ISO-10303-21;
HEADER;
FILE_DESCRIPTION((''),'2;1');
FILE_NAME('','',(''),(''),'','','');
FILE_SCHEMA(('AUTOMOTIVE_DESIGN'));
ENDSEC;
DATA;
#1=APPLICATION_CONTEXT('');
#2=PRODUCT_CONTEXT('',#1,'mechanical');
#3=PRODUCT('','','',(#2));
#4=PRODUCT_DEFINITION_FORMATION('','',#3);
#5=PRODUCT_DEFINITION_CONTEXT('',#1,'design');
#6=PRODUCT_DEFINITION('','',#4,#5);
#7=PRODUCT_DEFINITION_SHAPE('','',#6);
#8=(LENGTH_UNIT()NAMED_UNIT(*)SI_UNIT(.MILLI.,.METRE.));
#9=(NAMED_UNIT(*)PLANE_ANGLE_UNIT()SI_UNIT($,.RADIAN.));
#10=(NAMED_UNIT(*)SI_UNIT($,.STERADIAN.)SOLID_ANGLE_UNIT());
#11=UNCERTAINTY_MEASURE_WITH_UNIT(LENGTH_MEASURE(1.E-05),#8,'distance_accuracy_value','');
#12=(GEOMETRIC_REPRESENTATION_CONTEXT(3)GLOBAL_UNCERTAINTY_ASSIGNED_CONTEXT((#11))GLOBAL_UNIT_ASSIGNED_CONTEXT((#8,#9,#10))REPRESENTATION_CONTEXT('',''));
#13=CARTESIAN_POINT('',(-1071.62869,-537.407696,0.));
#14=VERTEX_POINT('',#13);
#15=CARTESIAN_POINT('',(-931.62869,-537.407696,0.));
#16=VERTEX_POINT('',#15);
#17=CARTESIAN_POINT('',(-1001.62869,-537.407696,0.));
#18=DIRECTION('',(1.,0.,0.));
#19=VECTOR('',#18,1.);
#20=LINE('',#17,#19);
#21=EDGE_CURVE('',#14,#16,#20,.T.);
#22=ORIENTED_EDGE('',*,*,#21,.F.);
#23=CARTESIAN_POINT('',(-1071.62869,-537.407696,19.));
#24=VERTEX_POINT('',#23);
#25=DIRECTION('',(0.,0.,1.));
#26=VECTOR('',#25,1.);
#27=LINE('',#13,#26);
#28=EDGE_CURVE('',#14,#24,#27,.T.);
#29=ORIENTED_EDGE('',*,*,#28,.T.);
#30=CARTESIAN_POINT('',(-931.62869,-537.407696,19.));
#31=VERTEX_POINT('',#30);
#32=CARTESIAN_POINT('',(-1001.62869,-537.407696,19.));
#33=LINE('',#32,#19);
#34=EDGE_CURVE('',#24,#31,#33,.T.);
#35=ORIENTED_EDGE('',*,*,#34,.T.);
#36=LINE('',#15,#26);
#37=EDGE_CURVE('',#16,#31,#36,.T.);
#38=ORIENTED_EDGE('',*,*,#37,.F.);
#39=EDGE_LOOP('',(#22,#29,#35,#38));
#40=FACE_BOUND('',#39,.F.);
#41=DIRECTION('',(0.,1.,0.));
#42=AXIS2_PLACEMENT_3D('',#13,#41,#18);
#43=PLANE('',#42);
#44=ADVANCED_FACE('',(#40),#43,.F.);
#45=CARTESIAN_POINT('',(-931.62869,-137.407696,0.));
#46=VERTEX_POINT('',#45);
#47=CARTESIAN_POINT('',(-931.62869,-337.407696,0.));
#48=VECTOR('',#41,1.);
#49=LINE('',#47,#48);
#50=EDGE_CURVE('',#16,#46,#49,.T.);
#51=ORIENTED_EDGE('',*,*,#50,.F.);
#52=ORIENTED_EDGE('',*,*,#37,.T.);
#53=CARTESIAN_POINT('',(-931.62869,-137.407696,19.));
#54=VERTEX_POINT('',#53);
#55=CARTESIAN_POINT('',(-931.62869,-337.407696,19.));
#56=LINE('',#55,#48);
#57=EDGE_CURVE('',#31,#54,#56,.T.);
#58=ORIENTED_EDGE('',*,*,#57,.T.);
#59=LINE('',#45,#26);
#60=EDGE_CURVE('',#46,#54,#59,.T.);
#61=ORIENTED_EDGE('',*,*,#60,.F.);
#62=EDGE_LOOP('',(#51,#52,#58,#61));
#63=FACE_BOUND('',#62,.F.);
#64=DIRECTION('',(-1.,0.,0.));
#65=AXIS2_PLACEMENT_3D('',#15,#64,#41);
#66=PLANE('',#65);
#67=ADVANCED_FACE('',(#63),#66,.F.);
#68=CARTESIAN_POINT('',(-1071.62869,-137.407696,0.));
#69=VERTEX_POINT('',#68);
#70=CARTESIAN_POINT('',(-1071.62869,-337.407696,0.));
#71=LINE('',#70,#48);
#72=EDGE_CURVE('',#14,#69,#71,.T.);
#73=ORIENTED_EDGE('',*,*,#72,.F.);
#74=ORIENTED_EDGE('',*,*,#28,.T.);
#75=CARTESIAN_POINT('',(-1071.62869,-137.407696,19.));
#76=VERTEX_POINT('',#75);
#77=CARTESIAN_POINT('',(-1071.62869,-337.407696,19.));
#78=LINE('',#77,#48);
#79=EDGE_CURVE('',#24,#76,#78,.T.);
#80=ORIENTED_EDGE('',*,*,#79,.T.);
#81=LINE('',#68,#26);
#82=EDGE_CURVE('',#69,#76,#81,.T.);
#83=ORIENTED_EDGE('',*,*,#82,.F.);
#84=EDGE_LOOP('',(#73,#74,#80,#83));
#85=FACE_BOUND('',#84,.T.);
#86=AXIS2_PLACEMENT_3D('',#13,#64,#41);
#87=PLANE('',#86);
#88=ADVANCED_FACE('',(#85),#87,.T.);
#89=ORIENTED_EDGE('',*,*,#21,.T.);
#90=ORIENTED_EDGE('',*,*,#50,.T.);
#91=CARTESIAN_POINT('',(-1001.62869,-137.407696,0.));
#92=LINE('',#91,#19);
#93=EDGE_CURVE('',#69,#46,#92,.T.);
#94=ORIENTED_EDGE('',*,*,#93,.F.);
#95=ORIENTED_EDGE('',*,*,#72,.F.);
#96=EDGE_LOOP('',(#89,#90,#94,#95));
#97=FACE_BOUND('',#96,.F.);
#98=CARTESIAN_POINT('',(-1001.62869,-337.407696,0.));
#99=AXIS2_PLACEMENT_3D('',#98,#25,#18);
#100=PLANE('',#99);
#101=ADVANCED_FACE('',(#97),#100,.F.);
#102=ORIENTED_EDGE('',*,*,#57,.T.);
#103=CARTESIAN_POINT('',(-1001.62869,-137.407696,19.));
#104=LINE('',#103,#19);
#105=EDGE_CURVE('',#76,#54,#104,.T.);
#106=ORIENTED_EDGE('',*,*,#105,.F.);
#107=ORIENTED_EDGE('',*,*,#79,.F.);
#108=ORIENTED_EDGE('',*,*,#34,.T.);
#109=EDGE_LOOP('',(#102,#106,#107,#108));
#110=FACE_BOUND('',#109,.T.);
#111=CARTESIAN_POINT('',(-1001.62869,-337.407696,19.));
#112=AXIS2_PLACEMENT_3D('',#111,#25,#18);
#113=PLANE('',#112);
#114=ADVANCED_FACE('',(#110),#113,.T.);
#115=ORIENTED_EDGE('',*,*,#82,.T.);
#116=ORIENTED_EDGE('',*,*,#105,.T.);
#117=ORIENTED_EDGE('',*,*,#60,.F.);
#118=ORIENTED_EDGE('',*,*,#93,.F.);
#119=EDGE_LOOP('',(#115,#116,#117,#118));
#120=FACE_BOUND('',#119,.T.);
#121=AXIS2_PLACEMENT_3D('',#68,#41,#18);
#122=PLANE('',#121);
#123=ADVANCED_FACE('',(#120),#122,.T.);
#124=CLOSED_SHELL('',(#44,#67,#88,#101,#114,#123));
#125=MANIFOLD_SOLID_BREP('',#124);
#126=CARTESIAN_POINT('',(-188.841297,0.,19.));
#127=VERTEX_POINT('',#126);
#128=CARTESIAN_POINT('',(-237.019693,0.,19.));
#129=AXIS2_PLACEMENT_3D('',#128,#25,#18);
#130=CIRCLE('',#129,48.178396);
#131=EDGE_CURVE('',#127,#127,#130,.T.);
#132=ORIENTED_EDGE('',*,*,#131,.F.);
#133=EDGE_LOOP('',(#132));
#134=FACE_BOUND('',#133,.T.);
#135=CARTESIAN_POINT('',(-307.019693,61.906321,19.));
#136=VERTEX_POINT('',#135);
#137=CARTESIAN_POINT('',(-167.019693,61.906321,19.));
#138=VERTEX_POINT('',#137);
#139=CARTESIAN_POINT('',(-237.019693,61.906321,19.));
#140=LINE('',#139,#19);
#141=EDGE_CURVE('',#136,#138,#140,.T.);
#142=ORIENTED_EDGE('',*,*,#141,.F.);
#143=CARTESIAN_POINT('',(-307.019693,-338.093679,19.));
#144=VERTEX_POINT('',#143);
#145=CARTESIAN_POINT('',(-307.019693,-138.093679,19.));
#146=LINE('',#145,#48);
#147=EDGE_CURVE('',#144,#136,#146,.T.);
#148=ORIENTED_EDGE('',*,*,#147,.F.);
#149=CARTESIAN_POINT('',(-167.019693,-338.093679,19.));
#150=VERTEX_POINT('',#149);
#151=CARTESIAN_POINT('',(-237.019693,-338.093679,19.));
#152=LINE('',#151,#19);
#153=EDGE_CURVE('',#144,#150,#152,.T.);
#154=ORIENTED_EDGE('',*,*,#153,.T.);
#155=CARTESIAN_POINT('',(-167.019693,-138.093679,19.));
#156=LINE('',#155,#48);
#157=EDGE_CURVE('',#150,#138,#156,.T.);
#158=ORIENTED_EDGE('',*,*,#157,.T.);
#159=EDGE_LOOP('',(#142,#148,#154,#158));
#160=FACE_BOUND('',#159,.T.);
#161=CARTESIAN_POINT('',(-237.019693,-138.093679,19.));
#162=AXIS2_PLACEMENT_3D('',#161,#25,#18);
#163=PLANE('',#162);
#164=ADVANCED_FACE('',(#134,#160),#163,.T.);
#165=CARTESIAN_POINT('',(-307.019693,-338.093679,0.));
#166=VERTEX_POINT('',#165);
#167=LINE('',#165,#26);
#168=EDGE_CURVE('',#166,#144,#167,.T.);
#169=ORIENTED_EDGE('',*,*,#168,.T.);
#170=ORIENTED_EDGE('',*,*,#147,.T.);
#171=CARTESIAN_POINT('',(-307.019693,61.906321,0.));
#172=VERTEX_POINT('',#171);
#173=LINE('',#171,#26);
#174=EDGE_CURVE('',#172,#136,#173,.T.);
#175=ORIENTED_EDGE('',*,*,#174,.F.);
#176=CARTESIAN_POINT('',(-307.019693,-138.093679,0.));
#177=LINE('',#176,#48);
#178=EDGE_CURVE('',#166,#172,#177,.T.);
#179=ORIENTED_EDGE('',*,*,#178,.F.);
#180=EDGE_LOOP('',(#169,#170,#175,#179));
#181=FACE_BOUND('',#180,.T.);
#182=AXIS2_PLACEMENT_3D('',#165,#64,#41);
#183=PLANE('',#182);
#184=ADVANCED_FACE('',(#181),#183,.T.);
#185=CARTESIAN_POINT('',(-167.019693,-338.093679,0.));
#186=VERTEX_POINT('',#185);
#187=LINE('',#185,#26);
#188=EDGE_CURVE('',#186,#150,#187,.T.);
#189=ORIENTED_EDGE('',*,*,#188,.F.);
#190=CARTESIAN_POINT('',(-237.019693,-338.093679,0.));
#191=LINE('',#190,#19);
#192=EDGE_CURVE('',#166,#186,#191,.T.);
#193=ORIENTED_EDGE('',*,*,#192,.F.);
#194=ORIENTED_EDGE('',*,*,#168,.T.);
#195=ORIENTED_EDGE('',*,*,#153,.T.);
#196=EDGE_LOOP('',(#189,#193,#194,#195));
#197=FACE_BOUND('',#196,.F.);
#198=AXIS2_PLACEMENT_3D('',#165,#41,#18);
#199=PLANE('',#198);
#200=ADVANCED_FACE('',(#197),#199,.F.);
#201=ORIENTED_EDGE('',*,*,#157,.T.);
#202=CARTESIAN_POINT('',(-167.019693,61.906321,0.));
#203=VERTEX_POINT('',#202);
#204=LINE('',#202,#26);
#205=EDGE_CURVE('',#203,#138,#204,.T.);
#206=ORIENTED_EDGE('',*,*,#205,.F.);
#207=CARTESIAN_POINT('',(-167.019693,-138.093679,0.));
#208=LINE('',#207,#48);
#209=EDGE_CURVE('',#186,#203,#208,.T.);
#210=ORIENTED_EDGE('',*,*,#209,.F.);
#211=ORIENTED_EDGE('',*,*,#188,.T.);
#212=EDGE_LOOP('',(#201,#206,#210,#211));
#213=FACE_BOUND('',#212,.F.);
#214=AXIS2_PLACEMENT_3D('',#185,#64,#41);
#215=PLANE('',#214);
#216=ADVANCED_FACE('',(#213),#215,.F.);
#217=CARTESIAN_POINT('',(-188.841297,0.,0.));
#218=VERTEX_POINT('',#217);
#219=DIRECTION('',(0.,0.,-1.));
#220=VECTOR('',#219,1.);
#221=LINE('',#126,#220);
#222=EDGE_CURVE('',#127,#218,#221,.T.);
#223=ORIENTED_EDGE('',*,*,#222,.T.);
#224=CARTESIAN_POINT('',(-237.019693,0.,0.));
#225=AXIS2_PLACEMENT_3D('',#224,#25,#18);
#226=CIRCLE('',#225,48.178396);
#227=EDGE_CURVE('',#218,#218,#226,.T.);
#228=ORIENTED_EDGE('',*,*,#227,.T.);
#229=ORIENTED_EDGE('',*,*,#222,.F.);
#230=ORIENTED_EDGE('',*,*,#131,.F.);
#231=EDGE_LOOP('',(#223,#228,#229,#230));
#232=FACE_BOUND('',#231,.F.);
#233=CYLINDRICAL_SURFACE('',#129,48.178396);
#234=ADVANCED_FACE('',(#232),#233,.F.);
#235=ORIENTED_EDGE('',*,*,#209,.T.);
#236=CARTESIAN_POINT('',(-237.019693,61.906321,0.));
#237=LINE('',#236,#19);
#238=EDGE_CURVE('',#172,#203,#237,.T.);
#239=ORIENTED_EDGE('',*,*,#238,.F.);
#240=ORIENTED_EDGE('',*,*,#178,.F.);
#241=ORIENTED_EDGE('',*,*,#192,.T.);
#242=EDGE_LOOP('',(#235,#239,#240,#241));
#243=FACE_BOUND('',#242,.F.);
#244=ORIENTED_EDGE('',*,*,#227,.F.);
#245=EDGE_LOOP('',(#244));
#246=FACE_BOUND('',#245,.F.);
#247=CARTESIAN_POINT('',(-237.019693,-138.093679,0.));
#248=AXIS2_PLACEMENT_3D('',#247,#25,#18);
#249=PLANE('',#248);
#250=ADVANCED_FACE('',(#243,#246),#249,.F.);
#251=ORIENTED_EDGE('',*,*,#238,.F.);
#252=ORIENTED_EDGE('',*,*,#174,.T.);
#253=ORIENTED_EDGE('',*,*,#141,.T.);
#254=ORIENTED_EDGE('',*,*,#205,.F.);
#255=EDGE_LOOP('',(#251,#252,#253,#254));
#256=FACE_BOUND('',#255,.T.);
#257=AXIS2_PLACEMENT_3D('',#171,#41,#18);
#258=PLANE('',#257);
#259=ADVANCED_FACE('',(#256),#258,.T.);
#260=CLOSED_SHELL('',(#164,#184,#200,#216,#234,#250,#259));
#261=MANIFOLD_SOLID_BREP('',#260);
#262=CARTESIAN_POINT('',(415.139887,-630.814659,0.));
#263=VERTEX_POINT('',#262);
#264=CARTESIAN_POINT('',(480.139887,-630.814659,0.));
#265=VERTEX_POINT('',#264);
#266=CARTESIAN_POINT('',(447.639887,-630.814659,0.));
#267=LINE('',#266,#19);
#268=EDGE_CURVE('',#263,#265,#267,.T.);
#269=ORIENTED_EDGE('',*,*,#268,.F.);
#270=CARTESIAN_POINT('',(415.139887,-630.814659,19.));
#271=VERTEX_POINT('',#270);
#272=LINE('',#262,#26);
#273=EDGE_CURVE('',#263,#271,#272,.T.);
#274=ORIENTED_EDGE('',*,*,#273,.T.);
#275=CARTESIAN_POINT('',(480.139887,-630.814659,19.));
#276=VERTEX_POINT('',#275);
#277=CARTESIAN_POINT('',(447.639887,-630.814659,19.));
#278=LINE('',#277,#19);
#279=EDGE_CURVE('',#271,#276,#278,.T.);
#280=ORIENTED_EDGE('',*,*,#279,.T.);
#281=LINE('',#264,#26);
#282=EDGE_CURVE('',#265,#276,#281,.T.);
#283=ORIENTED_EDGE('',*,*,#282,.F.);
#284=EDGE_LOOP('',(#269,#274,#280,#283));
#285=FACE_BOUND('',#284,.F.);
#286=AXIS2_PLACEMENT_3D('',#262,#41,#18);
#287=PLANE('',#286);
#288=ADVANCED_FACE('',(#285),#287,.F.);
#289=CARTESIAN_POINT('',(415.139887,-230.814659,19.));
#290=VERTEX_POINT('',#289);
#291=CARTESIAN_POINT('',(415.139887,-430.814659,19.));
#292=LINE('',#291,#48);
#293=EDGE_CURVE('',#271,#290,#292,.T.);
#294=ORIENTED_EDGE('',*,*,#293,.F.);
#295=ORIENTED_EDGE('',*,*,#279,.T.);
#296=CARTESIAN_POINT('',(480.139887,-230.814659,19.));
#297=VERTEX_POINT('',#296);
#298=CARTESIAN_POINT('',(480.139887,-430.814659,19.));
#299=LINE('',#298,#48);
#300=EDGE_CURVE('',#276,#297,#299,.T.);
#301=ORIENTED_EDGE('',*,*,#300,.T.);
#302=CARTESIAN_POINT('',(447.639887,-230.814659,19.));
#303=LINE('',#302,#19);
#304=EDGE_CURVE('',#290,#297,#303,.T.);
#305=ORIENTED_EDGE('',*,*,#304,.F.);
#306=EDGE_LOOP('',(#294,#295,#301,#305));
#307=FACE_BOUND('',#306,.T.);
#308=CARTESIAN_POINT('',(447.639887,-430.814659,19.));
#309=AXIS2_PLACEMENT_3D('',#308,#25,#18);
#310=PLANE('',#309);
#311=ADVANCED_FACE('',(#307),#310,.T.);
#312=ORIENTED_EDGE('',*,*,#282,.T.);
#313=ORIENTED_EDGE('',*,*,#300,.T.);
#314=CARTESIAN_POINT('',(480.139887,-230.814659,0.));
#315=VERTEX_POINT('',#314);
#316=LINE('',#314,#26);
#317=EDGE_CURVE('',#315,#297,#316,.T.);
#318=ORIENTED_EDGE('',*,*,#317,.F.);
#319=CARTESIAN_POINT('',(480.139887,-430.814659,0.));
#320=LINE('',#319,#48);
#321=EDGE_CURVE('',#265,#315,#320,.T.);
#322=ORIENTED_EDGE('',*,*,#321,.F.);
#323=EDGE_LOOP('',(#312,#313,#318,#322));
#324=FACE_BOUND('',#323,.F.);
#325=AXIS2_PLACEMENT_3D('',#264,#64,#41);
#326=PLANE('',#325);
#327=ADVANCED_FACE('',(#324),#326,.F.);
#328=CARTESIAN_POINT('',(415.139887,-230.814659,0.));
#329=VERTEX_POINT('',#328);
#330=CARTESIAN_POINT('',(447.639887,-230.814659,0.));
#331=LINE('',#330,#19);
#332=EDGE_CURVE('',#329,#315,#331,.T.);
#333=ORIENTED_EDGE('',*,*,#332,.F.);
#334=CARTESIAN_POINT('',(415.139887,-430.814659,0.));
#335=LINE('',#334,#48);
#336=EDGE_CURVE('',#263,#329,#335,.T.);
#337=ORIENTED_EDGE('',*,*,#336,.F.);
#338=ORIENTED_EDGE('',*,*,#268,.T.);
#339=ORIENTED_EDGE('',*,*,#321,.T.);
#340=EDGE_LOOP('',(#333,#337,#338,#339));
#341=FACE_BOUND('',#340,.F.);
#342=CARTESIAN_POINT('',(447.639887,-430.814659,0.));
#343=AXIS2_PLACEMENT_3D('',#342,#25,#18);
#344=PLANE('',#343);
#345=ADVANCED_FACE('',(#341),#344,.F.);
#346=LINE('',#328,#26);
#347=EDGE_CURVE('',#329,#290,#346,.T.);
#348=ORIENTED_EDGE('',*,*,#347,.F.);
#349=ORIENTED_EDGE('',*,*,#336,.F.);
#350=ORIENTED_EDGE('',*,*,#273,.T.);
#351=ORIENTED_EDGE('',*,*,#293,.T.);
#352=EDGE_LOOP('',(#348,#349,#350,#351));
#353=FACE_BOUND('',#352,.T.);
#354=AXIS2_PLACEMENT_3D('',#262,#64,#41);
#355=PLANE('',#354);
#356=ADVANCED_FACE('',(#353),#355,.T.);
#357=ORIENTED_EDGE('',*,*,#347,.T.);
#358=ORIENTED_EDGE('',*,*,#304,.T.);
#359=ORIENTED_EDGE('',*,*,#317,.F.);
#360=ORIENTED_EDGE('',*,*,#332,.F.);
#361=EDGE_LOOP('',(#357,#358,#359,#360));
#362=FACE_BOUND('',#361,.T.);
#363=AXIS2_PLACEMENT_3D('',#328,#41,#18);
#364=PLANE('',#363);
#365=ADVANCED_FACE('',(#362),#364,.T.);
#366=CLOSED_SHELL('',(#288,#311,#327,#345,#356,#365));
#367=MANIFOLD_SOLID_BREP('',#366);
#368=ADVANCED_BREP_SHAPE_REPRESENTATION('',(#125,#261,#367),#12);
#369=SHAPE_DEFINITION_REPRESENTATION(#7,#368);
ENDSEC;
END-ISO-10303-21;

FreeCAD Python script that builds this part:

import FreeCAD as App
import Part
import Sketcher

V = App.Vector


def add_polygon(sketch, points):
    """Adds a closed chain of lines whose ends are joined by coincident constraints."""
    first, n = sketch.GeometryCount, len(points)
    for a, b in zip(points, points[1:] + points[:1]):
        sketch.addGeometry(Part.LineSegment(App.Vector(*a, 0), App.Vector(*b, 0)), False)
    for i in range(n):
        sketch.addConstraint(Sketcher.Constraint("Coincident", first + i, 2, first + (i + 1) % n, 1))

doc = App.newDocument("Part")
body = doc.addObject("PartDesign::Body", "Body")

sketch1 = body.newObject("Sketcher::SketchObject", "Sketch")
sketch1.AttachmentSupport = (doc.getObject("XY_Plane"), [""])
sketch1.MapMode = "FlatFace"
add_polygon(sketch1, [(-1071.62869, -137.407696), (-1071.62869, -537.407696), (-931.62869, -537.407696), (-931.62869, -137.407696)])
sketch1.addConstraint(Sketcher.Constraint("Vertical", 0))
sketch1.addConstraint(Sketcher.Constraint("Horizontal", 1))
sketch1.addConstraint(Sketcher.Constraint("Vertical", 2))
sketch1.addConstraint(Sketcher.Constraint("Horizontal", 3))
sketch1.addConstraint(Sketcher.Constraint("DistanceX", 1, 1, 1, 2, 140.0))
sketch1.addConstraint(Sketcher.Constraint("DistanceY", 0, 2, 0, 1, 400.0))
sketch1.addConstraint(Sketcher.Constraint("DistanceX", 0, 2, -1, 1, 1071.62869))
sketch1.addConstraint(Sketcher.Constraint("DistanceY", 0, 2, -1, 1, 537.407696))
pad1 = body.newObject("PartDesign::Pad", "Pad")
pad1.Profile = sketch1
pad1.Length = 19
body2 = doc.addObject("PartDesign::Body", "Body001")

sketch2 = body2.newObject("Sketcher::SketchObject", "Sketch001")
sketch2.AttachmentSupport = (doc.getObject("XY_Plane001"), [""])
sketch2.MapMode = "FlatFace"
add_polygon(sketch2, [(-307.019693, 61.906321), (-307.019693, -338.093679), (-167.019693, -338.093679), (-167.019693, 61.906321)])
sketch2.addConstraint(Sketcher.Constraint("Vertical", 0))
sketch2.addConstraint(Sketcher.Constraint("Horizontal", 1))
sketch2.addConstraint(Sketcher.Constraint("Vertical", 2))
sketch2.addConstraint(Sketcher.Constraint("Horizontal", 3))
sketch2.addConstraint(Sketcher.Constraint("DistanceX", 1, 1, 1, 2, 140.0))
sketch2.addConstraint(Sketcher.Constraint("DistanceY", 0, 2, 0, 1, 400.0))
sketch2.addConstraint(Sketcher.Constraint("DistanceY", 0, 2, -1, 1, 338.093679))
sketch2.addConstraint(Sketcher.Constraint("DistanceX", 0, 2, -1, 1, 307.019693))
pad2 = body2.newObject("PartDesign::Pad", "Pad001")
pad2.Profile = sketch2
pad2.Length = 19

sketch3 = body2.newObject("Sketcher::SketchObject", "Sketch002")
sketch3.AttachmentSupport = (doc.getObject("XY_Plane001"), [""])
sketch3.MapMode = "FlatFace"
sketch3.AttachmentOffset = App.Placement(V(0, 0, 19), App.Rotation())
sketch3.addGeometry(Part.Circle(V(-237.019693, 0, 0), V(0, 0, 1), 48.178396), False)
sketch3.addConstraint(Sketcher.Constraint("PointOnObject", 0, 3, -1))
sketch3.addConstraint(Sketcher.Constraint("Diameter", 0, 96.356792))
sketch3.addConstraint(Sketcher.Constraint("DistanceX", 0, 3, -1, 1, 237.019693))
pocket1 = body2.newObject("PartDesign::Pocket", "Pocket")
pocket1.Profile = sketch3
pocket1.Length = 19
body3 = doc.addObject("PartDesign::Body", "Body002")

sketch4 = body3.newObject("Sketcher::SketchObject", "Sketch003")
sketch4.AttachmentSupport = (doc.getObject("XY_Plane002"), [""])
sketch4.MapMode = "FlatFace"
add_polygon(sketch4, [(415.139887, -230.814659), (415.139887, -630.814659), (480.139887, -630.814659), (480.139887, -230.814659)])
sketch4.addConstraint(Sketcher.Constraint("Vertical", 0))
sketch4.addConstraint(Sketcher.Constraint("Horizontal", 1))
sketch4.addConstraint(Sketcher.Constraint("Vertical", 2))
sketch4.addConstraint(Sketcher.Constraint("Horizontal", 3))
sketch4.addConstraint(Sketcher.Constraint("DistanceX", 1, 1, 1, 2, 65.0))
sketch4.addConstraint(Sketcher.Constraint("DistanceY", 0, 2, 0, 1, 400.0))
sketch4.addConstraint(Sketcher.Constraint("DistanceY", 0, 2, -1, 1, 630.814659))
sketch4.addConstraint(Sketcher.Constraint("DistanceX", -1, 1, 0, 2, 415.139887))
pad3 = body3.newObject("PartDesign::Pad", "Pad002")
pad3.Profile = sketch4
pad3.Length = 19

doc.recompute()
